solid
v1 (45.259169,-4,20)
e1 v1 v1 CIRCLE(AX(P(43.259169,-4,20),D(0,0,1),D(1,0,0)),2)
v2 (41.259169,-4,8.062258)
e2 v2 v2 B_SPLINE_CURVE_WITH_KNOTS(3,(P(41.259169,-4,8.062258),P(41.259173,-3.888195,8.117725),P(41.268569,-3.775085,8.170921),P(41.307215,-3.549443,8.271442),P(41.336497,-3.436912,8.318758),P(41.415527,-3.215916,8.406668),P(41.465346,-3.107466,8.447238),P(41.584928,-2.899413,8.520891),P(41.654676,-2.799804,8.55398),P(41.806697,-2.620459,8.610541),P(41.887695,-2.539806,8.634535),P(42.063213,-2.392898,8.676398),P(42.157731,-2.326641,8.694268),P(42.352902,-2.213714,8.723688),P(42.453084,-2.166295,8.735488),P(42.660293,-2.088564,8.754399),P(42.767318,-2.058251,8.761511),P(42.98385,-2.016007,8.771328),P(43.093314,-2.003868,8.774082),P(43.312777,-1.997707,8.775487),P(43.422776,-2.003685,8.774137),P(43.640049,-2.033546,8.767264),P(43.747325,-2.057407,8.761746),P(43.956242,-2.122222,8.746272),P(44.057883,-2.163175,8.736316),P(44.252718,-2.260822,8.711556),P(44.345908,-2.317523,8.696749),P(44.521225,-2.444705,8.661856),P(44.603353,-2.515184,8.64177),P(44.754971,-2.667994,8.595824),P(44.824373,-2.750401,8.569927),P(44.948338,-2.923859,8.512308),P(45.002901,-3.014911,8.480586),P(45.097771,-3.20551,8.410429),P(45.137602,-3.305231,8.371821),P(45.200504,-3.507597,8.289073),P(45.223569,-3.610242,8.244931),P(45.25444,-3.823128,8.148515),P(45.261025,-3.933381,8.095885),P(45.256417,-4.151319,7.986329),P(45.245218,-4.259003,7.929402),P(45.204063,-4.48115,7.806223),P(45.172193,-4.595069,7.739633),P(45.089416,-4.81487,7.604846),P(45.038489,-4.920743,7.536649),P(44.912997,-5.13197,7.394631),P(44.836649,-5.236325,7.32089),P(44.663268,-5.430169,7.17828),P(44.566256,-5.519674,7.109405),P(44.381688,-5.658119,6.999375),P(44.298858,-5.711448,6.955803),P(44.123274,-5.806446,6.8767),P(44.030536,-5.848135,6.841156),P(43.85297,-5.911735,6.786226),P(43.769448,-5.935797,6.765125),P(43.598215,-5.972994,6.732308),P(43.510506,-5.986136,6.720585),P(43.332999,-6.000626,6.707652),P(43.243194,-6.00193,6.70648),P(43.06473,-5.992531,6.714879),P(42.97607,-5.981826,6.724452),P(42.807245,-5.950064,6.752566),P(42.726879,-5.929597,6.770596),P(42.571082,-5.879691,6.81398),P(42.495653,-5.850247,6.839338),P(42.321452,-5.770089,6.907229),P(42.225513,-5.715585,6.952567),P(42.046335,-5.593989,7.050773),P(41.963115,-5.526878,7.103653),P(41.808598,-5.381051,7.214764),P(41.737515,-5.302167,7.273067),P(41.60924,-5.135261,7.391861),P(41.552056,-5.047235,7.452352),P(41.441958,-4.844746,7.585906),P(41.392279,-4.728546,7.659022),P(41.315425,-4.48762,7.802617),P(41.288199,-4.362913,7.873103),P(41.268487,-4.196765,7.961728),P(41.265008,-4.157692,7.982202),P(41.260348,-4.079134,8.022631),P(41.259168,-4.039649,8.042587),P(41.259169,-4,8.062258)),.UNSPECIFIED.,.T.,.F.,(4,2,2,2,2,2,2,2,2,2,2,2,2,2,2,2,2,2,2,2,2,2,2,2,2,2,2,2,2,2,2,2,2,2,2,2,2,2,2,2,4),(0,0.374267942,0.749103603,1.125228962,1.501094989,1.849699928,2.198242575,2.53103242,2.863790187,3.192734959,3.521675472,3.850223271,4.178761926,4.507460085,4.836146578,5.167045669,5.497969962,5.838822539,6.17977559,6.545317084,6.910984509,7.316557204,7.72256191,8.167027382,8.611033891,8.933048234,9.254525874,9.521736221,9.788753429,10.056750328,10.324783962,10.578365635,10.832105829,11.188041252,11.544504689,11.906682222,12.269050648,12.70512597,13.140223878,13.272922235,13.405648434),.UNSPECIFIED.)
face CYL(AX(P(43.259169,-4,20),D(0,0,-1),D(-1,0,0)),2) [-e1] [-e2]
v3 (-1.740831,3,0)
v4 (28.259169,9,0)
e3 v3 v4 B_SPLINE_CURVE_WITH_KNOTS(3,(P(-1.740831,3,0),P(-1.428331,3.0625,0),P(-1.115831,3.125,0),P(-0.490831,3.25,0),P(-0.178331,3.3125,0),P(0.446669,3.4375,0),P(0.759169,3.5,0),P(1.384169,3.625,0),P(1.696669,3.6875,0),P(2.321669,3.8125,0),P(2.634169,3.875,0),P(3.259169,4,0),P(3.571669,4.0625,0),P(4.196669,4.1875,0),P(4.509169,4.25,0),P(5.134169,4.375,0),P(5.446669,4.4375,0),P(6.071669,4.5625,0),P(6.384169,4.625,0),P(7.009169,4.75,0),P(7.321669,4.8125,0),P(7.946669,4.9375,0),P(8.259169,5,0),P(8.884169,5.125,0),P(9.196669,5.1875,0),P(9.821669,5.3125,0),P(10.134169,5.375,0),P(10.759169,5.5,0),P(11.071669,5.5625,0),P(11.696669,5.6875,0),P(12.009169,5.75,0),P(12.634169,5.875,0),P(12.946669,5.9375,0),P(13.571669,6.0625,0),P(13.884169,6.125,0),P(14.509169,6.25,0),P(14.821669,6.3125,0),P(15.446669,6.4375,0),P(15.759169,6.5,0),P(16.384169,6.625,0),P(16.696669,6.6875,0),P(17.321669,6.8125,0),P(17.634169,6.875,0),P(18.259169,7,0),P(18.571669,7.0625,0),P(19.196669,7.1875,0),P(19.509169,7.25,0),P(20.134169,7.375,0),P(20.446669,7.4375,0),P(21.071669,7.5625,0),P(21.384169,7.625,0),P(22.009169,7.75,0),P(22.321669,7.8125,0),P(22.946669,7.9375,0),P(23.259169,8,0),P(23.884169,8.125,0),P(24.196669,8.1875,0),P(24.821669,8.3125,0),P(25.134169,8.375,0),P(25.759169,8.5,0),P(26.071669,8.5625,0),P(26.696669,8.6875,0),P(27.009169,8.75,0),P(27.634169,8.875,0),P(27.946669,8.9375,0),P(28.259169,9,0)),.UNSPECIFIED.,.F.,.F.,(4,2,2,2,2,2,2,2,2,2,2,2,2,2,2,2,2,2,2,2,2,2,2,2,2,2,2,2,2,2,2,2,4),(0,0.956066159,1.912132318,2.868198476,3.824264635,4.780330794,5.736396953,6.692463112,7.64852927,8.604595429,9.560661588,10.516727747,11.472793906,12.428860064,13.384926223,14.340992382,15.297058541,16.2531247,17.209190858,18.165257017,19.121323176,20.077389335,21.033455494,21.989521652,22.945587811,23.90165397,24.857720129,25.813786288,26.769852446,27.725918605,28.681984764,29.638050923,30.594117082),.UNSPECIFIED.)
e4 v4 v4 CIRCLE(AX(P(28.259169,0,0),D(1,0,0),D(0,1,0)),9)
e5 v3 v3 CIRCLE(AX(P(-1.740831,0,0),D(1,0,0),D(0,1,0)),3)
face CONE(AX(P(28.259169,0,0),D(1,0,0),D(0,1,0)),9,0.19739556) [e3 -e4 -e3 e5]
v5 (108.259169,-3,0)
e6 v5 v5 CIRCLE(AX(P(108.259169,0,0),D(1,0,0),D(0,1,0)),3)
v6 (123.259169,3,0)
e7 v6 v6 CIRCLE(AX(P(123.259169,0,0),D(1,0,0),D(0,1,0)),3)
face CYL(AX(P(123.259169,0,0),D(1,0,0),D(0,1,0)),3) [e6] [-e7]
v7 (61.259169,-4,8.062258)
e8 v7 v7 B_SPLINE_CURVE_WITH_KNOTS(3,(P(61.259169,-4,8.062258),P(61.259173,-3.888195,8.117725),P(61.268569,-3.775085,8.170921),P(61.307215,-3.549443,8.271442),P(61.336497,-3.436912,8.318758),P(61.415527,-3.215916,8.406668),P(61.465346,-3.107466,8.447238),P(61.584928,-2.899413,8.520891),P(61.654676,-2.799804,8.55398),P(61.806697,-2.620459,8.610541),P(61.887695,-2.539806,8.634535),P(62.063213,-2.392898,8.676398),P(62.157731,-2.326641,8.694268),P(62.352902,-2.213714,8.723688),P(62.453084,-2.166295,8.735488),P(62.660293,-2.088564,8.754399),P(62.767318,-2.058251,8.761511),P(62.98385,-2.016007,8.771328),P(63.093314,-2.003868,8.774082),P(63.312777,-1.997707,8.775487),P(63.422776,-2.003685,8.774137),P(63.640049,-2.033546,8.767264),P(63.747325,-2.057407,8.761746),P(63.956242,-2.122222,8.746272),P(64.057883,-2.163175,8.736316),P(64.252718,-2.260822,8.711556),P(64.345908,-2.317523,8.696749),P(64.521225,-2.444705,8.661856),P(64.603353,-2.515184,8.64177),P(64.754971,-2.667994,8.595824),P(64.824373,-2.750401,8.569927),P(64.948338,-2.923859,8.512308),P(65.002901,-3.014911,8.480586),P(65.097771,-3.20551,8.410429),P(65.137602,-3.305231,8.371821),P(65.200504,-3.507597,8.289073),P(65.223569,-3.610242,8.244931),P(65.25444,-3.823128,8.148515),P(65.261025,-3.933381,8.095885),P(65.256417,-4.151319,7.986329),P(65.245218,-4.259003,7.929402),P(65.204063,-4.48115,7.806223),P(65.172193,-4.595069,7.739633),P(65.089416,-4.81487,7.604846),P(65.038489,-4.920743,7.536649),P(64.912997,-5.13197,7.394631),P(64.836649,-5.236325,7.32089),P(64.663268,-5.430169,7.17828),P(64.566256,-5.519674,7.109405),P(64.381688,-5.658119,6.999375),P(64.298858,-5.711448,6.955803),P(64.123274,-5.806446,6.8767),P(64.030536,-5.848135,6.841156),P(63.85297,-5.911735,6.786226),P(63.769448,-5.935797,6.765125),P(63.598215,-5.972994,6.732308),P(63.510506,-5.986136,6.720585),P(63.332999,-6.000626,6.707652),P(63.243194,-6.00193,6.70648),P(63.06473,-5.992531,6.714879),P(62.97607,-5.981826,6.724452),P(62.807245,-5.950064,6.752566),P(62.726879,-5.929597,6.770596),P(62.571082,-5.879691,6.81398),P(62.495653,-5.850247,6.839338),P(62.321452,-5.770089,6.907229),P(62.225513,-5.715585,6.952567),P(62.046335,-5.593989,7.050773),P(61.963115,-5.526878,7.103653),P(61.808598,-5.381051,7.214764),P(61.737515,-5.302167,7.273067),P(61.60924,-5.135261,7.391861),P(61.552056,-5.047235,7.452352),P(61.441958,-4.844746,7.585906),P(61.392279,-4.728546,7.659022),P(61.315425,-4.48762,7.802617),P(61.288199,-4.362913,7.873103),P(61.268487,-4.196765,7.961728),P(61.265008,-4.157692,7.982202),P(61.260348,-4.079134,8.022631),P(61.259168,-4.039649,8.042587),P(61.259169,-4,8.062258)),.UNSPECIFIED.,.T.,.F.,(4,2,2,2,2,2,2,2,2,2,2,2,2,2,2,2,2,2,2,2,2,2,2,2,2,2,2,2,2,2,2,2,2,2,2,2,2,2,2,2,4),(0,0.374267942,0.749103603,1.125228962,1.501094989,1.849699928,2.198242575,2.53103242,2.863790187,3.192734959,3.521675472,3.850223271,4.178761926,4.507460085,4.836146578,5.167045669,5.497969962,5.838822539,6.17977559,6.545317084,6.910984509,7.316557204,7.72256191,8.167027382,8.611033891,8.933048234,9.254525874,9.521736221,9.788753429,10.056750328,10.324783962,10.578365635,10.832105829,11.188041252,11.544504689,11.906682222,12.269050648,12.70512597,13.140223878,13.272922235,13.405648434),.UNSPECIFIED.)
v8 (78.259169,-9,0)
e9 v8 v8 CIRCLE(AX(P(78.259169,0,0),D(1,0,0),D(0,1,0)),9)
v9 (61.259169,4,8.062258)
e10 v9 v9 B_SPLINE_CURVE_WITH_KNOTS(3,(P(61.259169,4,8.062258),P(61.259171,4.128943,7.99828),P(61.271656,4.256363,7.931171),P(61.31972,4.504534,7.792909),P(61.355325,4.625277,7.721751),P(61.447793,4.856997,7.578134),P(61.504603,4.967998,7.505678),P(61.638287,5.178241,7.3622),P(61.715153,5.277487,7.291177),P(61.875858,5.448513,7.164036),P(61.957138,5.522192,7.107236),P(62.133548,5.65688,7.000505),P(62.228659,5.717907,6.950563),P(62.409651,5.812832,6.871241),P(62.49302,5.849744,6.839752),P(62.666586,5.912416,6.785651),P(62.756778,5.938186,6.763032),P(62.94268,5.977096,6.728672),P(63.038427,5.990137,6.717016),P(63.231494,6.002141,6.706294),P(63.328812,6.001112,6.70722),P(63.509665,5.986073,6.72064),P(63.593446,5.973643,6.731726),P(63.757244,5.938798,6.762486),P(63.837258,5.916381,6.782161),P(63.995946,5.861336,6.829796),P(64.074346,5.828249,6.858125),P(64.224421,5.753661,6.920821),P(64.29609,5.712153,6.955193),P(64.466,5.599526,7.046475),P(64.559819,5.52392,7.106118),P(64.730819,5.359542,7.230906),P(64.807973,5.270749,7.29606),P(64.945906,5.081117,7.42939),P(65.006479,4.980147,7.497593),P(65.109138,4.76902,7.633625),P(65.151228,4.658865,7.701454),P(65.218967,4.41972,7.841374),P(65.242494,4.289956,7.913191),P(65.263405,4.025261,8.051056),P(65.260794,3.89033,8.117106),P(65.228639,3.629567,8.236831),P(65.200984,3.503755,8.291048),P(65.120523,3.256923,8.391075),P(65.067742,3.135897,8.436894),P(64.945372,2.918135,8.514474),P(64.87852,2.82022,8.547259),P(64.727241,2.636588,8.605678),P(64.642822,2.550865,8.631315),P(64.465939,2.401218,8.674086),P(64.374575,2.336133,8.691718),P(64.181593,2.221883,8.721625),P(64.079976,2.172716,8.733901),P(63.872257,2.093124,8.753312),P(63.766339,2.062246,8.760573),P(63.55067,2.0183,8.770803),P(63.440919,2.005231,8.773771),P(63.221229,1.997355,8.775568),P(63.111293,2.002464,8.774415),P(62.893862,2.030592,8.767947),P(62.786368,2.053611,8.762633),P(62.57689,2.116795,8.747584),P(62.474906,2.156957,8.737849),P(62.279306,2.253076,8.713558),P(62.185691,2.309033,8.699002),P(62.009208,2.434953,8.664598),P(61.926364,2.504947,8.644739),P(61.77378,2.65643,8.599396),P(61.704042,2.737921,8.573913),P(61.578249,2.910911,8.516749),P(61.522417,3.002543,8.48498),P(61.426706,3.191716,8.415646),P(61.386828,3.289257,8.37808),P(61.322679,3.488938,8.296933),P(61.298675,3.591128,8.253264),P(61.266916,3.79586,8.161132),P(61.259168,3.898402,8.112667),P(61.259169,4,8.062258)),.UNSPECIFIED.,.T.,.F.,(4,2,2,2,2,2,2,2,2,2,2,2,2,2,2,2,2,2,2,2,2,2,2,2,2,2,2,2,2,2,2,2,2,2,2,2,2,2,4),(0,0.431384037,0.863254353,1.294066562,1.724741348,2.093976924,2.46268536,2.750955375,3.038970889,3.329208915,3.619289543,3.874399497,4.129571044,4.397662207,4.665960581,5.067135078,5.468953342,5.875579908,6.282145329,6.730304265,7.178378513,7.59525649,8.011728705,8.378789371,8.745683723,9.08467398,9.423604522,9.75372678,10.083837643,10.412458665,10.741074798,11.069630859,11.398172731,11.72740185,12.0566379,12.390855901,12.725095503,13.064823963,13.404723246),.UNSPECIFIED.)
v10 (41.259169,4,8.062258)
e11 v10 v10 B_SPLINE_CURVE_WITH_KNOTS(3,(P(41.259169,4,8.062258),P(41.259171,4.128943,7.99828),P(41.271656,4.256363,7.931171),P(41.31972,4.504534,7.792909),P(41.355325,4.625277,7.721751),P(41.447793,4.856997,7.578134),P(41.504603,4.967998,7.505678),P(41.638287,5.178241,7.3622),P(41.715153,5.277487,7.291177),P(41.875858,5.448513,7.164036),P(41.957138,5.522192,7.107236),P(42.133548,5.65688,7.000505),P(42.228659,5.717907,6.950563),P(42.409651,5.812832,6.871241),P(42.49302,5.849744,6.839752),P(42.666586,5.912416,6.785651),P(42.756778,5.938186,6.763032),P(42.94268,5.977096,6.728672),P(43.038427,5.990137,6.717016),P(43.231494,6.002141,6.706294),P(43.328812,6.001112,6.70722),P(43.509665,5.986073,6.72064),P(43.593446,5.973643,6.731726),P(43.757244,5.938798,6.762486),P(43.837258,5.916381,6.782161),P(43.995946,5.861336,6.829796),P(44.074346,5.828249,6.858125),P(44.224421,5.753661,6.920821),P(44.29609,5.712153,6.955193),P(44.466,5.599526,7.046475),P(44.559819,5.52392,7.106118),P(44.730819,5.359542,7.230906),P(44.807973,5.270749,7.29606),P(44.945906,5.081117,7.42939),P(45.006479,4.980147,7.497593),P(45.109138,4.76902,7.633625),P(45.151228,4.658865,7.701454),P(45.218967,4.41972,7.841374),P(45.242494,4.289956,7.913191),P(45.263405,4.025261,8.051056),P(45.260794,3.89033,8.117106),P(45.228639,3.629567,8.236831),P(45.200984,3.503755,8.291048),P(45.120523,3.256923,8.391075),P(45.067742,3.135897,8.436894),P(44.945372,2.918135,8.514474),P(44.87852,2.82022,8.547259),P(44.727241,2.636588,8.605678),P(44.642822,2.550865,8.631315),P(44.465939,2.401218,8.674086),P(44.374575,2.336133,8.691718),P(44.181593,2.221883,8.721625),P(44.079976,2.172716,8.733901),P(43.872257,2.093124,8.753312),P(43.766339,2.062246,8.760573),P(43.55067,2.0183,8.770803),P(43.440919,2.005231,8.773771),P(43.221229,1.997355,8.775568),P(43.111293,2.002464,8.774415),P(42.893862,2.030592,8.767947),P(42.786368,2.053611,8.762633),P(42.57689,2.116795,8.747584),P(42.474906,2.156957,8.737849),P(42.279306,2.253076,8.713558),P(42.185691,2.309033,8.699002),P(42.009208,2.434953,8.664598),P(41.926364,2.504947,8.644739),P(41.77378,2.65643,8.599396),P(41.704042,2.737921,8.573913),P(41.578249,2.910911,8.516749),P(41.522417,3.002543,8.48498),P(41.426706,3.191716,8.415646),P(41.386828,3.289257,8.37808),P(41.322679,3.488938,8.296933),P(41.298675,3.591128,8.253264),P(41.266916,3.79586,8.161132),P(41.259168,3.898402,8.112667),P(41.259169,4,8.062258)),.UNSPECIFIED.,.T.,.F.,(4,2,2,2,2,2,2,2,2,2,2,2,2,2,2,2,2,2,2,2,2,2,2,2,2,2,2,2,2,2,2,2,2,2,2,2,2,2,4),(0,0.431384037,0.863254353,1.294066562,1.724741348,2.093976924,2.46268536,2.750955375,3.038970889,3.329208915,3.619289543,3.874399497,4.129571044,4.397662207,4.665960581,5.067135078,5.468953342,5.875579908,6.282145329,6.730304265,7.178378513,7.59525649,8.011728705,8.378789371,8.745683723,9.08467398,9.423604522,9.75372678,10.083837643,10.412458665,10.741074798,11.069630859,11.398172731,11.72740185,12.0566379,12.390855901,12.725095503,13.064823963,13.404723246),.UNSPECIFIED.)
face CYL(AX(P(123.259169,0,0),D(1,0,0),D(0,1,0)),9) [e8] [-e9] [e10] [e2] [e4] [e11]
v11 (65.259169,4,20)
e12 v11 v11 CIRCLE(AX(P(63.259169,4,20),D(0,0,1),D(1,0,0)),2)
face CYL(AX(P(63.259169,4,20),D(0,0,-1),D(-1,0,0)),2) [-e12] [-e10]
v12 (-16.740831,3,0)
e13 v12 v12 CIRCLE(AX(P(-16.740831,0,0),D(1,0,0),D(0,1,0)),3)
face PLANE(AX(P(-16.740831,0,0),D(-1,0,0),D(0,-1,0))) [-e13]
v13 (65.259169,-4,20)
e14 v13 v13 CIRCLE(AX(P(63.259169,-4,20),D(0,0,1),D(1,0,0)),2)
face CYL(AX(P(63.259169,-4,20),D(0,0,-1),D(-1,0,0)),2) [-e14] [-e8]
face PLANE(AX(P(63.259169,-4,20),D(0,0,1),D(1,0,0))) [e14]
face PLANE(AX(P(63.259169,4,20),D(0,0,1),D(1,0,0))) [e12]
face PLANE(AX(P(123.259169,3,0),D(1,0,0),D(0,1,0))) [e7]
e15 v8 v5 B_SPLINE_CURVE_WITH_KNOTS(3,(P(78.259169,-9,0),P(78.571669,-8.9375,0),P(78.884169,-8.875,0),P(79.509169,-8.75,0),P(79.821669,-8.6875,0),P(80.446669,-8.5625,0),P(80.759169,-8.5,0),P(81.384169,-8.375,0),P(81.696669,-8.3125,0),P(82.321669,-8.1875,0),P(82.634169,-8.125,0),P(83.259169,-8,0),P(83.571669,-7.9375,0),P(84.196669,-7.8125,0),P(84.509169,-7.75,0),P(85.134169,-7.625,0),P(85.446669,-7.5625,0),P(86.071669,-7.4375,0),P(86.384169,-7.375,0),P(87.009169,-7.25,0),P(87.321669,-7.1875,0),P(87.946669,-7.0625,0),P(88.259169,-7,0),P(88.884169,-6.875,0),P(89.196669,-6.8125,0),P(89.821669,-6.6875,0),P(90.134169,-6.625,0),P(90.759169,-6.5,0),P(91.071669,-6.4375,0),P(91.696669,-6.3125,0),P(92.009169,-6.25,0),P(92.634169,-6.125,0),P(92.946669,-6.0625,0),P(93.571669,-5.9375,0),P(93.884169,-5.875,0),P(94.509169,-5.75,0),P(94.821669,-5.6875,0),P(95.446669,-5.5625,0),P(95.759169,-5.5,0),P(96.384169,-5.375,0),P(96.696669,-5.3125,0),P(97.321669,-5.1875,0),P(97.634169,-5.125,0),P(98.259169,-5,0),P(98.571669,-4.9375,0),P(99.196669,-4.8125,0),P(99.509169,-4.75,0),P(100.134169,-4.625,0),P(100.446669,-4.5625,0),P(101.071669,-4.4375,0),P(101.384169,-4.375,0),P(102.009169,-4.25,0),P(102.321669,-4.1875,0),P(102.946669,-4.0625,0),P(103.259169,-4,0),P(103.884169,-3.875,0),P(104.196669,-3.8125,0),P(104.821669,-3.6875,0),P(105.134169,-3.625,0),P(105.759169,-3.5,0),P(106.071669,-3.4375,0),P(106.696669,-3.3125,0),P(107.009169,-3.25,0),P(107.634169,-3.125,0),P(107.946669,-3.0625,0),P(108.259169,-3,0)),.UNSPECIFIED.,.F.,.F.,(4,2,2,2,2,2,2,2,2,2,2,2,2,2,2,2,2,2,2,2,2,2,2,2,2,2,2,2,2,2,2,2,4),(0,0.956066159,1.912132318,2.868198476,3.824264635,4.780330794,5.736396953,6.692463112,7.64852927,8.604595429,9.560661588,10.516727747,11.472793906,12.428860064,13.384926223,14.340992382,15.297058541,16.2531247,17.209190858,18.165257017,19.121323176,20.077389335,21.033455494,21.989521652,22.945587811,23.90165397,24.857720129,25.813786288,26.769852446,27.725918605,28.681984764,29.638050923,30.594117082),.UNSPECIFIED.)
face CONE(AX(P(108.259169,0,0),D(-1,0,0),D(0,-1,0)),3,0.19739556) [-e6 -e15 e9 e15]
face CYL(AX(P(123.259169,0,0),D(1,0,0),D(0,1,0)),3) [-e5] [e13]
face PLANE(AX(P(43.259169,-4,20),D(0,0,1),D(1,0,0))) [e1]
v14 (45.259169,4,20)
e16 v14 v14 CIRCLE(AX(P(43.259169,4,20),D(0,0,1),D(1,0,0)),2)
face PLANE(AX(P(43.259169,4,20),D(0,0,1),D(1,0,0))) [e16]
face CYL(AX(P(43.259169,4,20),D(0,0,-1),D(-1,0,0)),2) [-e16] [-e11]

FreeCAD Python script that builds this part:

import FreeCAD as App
import Part
import Sketcher
from FreeCAD import Vector


def add_polygon(sketch, points):
    """Adds a closed chain of lines whose ends are joined by coincident constraints."""
    first, n = sketch.GeometryCount, len(points)
    for a, b in zip(points, points[1:] + points[:1]):
        sketch.addGeometry(Part.LineSegment(App.Vector(*a, 0), App.Vector(*b, 0)), False)
    for i in range(n):
        sketch.addConstraint(Sketcher.Constraint("Coincident", first + i, 2, first + (i + 1) % n, 1))

doc = App.newDocument("Part")
body = doc.addObject("PartDesign::Body", "Body")

# Sketch on XY plane
sketch1 = body.newObject("Sketcher::SketchObject", "Sketch")
sketch1.AttachmentSupport = (doc.getObject("XY_Plane"), [""])
sketch1.MapMode = "FlatFace"
add_polygon(sketch1, [(-1.7, 3), (-16.7, 3), (-16.7, 0), (123.3, 0), (123.3, 3), (108.3, 3), (78.3, 9), (28.3, 9)])  # lines 0-7
sketch1.addConstraint([
    Sketcher.Constraint("Horizontal", 0),
    Sketcher.Constraint("Vertical", 1),
    Sketcher.Constraint("Horizontal", 2),
    Sketcher.Constraint("Vertical", 3),
    Sketcher.Constraint("Horizontal", 4),
    Sketcher.Constraint("Horizontal", 6),
    Sketcher.Constraint("PointOnObject", 1, 2, -1),
    Sketcher.Constraint("Horizontal", 0, 2, 3, 2),
    Sketcher.Constraint("Equal", 0, 4),
    Sketcher.Constraint("Equal", 5, 7),
    Sketcher.Constraint("DistanceX", 0, 2, 0, 1, 15.0),
    Sketcher.Constraint("DistanceX", 2, 1, 2, 2, 140.0),
    Sketcher.Constraint("DistanceX", 6, 2, 6, 1, 50.0),
    Sketcher.Constraint("DistanceY", 1, 2, 1, 1, 3.0),
    Sketcher.Constraint("DistanceY", -1, 1, 5, 2, 9.0),
    Sketcher.Constraint("DistanceX", 0, 2, -1, 1, 16.740831),
])
revolution = body.newObject("PartDesign::Revolution", "Revolution")
revolution.Profile = sketch1
revolution.ReferenceAxis = (sketch1, ["H_Axis"])
revolution.Angle = 360

# Sketch on XY plane
sketch2 = body.newObject("Sketcher::SketchObject", "Sketch001")
sketch2.AttachmentSupport = (doc.getObject("XY_Plane"), [""])
sketch2.MapMode = "FlatFace"
sketch2.addGeometry([
    Part.Circle(Vector(43.3, 4, 0), Vector(0, 0, 1), 2),
    Part.Circle(Vector(43.3, -4, 0), Vector(0, 0, 1), 2),
    Part.Circle(Vector(63.3, 4, 0), Vector(0, 0, 1), 2),
    Part.Circle(Vector(63.3, -4, 0), Vector(0, 0, 1), 2),
], False)
sketch2.addConstraint([
    Sketcher.Constraint("Equal", 0, 1),
    Sketcher.Constraint("Equal", 1, 2),
    Sketcher.Constraint("Equal", 2, 3),
    Sketcher.Constraint("Symmetric", 0, 3, 1, 3, -1),
    Sketcher.Constraint("Symmetric", 2, 3, 3, 3, -1),
    Sketcher.Constraint("Horizontal", 0, 3, 2, 3),
    Sketcher.Constraint("Diameter", 0, 4.0),
    Sketcher.Constraint("DistanceY", -1, 1, 0, 3, 4.0),
    Sketcher.Constraint("DistanceX", 0, 3, 2, 3, 20.0),
    Sketcher.Constraint("DistanceX", -1, 1, 0, 3, 43.259169),
])
pad1 = body.newObject("PartDesign::Pad", "Pad")
pad1.Profile = sketch2
pad1.Length = 20

doc.recompute()
